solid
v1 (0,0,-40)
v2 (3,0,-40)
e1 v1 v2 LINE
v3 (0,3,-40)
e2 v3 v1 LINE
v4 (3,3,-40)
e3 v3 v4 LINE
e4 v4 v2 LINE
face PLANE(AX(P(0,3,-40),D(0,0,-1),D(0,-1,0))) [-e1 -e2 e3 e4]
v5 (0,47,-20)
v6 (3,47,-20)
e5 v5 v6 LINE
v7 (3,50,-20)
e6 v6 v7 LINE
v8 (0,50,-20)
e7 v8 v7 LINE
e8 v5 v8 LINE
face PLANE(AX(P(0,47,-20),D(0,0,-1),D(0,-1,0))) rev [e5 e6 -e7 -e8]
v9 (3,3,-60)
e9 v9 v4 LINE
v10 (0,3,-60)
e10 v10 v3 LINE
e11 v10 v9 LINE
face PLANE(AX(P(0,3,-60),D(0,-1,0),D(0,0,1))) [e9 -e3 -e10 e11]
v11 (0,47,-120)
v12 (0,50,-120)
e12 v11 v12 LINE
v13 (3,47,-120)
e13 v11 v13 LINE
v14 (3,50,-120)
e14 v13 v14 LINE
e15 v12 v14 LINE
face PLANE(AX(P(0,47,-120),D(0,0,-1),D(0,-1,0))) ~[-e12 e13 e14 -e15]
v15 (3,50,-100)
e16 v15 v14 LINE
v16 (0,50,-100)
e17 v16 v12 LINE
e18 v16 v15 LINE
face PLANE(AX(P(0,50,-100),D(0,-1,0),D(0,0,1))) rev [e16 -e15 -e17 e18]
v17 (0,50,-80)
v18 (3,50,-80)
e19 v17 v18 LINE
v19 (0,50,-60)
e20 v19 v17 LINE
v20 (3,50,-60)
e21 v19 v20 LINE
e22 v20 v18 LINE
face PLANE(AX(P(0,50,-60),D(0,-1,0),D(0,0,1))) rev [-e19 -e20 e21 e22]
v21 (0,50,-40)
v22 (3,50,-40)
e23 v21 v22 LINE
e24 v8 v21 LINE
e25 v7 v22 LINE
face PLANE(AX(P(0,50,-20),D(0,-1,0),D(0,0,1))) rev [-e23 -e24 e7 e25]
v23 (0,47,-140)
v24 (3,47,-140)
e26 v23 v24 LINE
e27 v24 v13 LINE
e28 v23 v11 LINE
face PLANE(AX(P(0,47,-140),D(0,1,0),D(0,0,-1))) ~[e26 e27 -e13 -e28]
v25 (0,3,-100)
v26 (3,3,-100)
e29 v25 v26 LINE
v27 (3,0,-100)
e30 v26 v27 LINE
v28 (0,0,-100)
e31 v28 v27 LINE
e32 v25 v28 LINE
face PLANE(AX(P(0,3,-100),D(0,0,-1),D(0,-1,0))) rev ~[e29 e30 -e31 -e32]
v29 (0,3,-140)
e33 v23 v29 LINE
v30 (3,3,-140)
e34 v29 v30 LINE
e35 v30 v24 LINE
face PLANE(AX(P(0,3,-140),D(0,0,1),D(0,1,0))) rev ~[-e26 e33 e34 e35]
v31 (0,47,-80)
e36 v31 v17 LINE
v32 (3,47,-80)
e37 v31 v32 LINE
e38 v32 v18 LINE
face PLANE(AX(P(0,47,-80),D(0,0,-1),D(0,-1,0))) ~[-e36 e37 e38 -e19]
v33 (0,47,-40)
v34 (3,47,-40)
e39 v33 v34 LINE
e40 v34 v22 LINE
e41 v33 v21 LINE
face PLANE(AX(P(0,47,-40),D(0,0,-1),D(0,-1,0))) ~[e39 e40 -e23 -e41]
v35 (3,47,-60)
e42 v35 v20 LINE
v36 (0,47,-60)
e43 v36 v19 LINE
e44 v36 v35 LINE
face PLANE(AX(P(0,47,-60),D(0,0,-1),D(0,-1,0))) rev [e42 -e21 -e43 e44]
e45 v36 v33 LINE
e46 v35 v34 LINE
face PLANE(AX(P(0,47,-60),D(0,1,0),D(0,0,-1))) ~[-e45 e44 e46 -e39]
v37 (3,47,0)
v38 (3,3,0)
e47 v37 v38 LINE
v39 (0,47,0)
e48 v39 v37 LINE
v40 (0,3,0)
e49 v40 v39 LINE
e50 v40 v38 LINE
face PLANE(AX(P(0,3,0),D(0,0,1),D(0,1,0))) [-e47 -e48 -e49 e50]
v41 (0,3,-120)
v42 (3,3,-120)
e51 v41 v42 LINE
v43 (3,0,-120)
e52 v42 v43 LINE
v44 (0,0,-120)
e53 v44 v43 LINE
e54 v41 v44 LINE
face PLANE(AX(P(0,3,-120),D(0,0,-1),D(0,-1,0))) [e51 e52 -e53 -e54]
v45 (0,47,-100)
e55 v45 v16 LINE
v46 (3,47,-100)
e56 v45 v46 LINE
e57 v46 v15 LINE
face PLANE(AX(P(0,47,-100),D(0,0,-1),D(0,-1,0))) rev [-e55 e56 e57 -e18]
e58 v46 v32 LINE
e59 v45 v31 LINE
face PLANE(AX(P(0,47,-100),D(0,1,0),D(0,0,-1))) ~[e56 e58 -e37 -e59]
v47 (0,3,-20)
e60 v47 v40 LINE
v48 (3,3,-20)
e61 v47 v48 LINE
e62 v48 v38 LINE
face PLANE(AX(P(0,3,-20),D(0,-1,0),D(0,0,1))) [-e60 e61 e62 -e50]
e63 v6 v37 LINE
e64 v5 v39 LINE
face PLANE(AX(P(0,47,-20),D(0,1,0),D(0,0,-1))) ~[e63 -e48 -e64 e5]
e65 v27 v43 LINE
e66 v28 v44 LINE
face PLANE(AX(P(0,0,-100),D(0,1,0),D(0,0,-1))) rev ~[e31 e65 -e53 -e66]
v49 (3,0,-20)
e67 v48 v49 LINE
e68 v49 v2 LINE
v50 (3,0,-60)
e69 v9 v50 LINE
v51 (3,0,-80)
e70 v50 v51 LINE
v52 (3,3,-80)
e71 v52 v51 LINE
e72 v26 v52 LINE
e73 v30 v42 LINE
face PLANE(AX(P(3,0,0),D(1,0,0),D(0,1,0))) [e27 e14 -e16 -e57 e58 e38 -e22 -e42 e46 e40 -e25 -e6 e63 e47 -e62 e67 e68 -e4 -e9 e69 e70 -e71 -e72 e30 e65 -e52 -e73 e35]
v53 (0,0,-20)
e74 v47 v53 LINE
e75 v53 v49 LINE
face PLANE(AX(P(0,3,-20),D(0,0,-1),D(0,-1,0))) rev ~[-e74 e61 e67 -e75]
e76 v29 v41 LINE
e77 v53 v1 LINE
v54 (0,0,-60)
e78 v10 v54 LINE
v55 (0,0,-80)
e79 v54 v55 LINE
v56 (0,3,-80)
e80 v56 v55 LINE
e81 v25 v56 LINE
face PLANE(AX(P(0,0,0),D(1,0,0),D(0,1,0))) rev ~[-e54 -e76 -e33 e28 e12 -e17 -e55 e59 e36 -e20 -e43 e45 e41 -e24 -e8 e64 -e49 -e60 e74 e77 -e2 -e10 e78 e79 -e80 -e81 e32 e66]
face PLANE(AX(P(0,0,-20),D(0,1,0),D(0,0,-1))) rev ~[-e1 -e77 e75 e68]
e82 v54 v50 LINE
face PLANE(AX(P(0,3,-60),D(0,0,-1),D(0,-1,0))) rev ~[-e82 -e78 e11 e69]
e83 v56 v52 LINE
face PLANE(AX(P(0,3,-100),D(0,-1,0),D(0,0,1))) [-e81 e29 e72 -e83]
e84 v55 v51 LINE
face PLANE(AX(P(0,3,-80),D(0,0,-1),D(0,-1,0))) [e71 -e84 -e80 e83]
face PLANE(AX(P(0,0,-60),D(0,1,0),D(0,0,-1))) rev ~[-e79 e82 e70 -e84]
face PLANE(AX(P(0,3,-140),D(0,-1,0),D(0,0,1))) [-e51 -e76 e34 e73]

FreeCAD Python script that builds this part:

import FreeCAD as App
import Part
import Sketcher

V = App.Vector


def add_polygon(sketch, points):
    """Adds a closed chain of lines whose ends are joined by coincident constraints."""
    first, n = sketch.GeometryCount, len(points)
    for a, b in zip(points, points[1:] + points[:1]):
        sketch.addGeometry(Part.LineSegment(App.Vector(*a, 0), App.Vector(*b, 0)), False)
    for i in range(n):
        sketch.addConstraint(Sketcher.Constraint("Coincident", first + i, 2, first + (i + 1) % n, 1))

doc = App.newDocument("Part")
body = doc.addObject("PartDesign::Body", "Body")

sketch1 = body.newObject("Sketcher::SketchObject", "Sketch")
sketch1.AttachmentSupport = (doc.getObject("YZ_Plane"), [""])
sketch1.MapMode = "FlatFace"
add_polygon(sketch1, [(0, -20), (0, -40), (3, -40), (3, -60), (0, -60), (0, -80), (3, -80), (3, -100), (0, -100), (0, -120), (3, -120), (3, -140), (25, -140), (25, 0), (3, 0), (3, -20)])
sketch1.addConstraint([
    Sketcher.Constraint("Vertical", 0),
    Sketcher.Constraint("Horizontal", 1),
    Sketcher.Constraint("Vertical", 2),
    Sketcher.Constraint("Horizontal", 3),
    Sketcher.Constraint("Vertical", 4),
    Sketcher.Constraint("Horizontal", 5),
    Sketcher.Constraint("Vertical", 6),
    Sketcher.Constraint("Horizontal", 7),
    Sketcher.Constraint("Vertical", 8),
    Sketcher.Constraint("Horizontal", 9),
    Sketcher.Constraint("Vertical", 10),
    Sketcher.Constraint("Horizontal", 11),
    Sketcher.Constraint("Vertical", 12),
    Sketcher.Constraint("Horizontal", 13),
    Sketcher.Constraint("Vertical", 14),
    Sketcher.Constraint("Horizontal", 15),
    Sketcher.Constraint("PointOnObject", 0, 2, -2),
    Sketcher.Constraint("PointOnObject", 3, 2, -2),
    Sketcher.Constraint("PointOnObject", 7, 2, -2),
    Sketcher.Constraint("PointOnObject", 12, 2, -1),
    Sketcher.Constraint("Vertical", 2, 2, 5, 2),
    Sketcher.Constraint("Vertical", 6, 2, 9, 2),
    Sketcher.Constraint("Vertical", 10, 2, 13, 2),
    Sketcher.Constraint("Equal", 0, 2),
    Sketcher.Constraint("Equal", 2, 4),
    Sketcher.Constraint("Equal", 4, 6),
    Sketcher.Constraint("Equal", 6, 8),
    Sketcher.Constraint("Equal", 8, 10),
    Sketcher.Constraint("Equal", 10, 14),
    Sketcher.Constraint("DistanceX", 1, 1, 1, 2, 3.0),
    Sketcher.Constraint("DistanceY", 0, 2, 0, 1, 20.0),
    Sketcher.Constraint("DistanceX", -1, 1, 11, 2, 25.0),
])
pad1 = body.newObject("PartDesign::Pad", "Pad")
pad1.Profile = sketch1
pad1.Length = 3
doc.recompute()

datumplane = body.newObject("PartDesign::Plane", "DatumPlane")
datumplane.AttachmentSupport = (doc.getObject("XZ_Plane"), [""])
datumplane.MapMode = "FlatFace"
datumplane.AttachmentOffset = App.Placement(V(0, 0, -25), App.Rotation())
mirrored = body.newObject("PartDesign::Mirrored", "Mirrored")
mirrored.Originals = [pad1]
mirrored.MirrorPlane = (datumplane, [""])
body.Tip = mirrored

doc.recompute()
